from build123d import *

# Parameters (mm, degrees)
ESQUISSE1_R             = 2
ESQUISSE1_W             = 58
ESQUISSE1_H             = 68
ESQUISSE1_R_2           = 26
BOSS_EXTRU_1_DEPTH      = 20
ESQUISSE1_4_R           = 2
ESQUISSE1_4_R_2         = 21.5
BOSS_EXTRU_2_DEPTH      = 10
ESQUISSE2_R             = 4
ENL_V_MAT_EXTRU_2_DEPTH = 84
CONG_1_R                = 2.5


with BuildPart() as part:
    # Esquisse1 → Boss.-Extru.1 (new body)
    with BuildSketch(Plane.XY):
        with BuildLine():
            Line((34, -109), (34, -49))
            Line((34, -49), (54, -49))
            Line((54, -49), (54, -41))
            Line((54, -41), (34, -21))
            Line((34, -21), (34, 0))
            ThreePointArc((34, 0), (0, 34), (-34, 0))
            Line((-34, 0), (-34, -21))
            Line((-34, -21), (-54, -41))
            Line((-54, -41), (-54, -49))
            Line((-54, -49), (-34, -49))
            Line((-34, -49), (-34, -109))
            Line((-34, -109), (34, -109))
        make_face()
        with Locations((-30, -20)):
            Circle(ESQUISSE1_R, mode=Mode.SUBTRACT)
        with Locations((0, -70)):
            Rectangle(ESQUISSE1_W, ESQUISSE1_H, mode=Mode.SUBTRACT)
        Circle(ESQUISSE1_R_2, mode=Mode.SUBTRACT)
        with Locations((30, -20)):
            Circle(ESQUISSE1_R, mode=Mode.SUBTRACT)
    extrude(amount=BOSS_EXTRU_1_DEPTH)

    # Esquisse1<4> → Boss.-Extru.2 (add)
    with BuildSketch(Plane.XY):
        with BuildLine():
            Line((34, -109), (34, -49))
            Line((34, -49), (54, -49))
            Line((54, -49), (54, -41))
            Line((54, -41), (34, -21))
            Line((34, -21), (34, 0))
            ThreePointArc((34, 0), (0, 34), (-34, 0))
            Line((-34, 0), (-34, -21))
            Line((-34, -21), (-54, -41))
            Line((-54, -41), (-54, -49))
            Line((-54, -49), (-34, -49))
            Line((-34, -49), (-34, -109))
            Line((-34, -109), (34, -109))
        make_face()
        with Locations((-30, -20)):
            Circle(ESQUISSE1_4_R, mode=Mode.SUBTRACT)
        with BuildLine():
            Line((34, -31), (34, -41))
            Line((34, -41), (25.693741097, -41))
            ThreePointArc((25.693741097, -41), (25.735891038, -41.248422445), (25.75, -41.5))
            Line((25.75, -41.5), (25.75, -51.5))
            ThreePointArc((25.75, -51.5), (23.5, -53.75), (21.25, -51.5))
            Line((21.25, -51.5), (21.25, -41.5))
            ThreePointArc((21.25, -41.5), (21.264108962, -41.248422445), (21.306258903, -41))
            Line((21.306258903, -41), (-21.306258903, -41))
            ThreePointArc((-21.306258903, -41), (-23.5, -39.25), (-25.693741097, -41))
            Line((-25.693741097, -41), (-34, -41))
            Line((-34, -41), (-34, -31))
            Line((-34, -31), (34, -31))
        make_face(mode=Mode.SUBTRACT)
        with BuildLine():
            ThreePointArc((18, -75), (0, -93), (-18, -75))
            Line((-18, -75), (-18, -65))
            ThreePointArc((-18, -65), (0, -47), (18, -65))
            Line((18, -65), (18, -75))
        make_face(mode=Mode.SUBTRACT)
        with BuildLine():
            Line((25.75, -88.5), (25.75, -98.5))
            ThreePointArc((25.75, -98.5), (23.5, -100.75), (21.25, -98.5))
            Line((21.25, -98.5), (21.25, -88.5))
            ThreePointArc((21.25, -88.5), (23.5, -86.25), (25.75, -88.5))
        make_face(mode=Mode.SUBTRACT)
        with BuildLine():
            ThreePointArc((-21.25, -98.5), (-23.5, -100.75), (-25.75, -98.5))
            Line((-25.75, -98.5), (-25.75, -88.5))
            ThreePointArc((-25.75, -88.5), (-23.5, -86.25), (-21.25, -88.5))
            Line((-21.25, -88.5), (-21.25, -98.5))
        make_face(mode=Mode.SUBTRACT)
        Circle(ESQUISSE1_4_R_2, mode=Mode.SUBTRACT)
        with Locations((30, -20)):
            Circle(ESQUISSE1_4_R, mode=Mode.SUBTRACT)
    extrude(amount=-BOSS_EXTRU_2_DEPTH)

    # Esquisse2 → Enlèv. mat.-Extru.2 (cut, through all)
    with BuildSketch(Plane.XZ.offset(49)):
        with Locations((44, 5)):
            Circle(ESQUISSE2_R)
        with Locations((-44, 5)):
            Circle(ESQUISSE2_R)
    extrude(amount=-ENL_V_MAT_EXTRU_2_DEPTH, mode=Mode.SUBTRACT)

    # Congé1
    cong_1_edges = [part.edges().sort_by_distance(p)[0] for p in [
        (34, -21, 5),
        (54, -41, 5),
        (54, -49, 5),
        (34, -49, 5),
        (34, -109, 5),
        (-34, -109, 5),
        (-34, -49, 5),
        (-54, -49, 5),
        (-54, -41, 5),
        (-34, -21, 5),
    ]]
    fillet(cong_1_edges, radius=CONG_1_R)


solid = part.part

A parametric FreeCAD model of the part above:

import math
import FreeCAD as App
import Part
import Sketcher
from FreeCAD import Vector
Q = App.Units.Quantity


def edges_at(feature, points):
    """Names of the edges that pass closest to the given points."""
    edges = feature.Shape.Edges
    near = lambda p: min(range(len(edges)), key=lambda i: edges[i].distToShape(Part.Vertex(*p))[0])
    return sorted({f"Edge{near(p) + 1}" for p in points})

doc = App.newDocument("Part")
body = doc.addObject("PartDesign::Body", "Body")

sketch1 = body.newObject("Sketcher::SketchObject", "Sketch")
sketch1.AttachmentSupport = (doc.getObject("XY_Plane"), [""])
sketch1.MapMode = "FlatFace"
sketch1.addGeometry(Part.LineSegment(Vector(34, -109, 0), Vector(34, -49, 0)), False)
sketch1.addGeometry(Part.LineSegment(Vector(34, -49, 0), Vector(54, -49, 0)), False)
sketch1.addGeometry(Part.LineSegment(Vector(54, -49, 0), Vector(54, -41, 0)), False)
sketch1.addGeometry(Part.LineSegment(Vector(54, -41, 0), Vector(34, -21, 0)), False)
sketch1.addGeometry(Part.LineSegment(Vector(34, -21, 0), Vector(34, 0, 0)), False)
sketch1.addGeometry(Part.ArcOfCircle(Part.Circle(Vector(0, 0, 0), Vector(0, 0, 1), 34), math.radians(0), math.radians(180)), False)
sketch1.addGeometry(Part.LineSegment(Vector(-34, 0, 0), Vector(-34, -21, 0)), False)
sketch1.addGeometry(Part.LineSegment(Vector(-34, -21, 0), Vector(-54, -41, 0)), False)
sketch1.addGeometry(Part.LineSegment(Vector(-54, -41, 0), Vector(-54, -49, 0)), False)
sketch1.addGeometry(Part.LineSegment(Vector(-54, -49, 0), Vector(-34, -49, 0)), False)
sketch1.addGeometry(Part.LineSegment(Vector(-34, -49, 0), Vector(-34, -109, 0)), False)
sketch1.addGeometry(Part.LineSegment(Vector(-34, -109, 0), Vector(34, -109, 0)), False)
sketch1.addGeometry(Part.LineSegment(Vector(29, -104, 0), Vector(-29, -104, 0)), False)
sketch1.addGeometry(Part.LineSegment(Vector(-29, -104, 0), Vector(-29, -36, 0)), False)
sketch1.addGeometry(Part.LineSegment(Vector(-29, -36, 0), Vector(29, -36, 0)), False)
sketch1.addGeometry(Part.LineSegment(Vector(29, -36, 0), Vector(29, -104, 0)), False)
sketch1.addGeometry(Part.Circle(Vector(-30, -20, 0), Vector(0, 0, 1), 2), False)
sketch1.addGeometry(Part.Circle(Vector(30, -20, 0), Vector(0, 0, 1), 2), False)
sketch1.addGeometry(Part.Circle(Vector(0, 0, 0), Vector(0, 0, 1), 26), False)
sketch1.addConstraint(Sketcher.Constraint("Coincident", 0, 2, 1, 1))
sketch1.addConstraint(Sketcher.Constraint("Coincident", 1, 2, 2, 1))
sketch1.addConstraint(Sketcher.Constraint("Coincident", 2, 2, 3, 1))
sketch1.addConstraint(Sketcher.Constraint("Coincident", 3, 2, 4, 1))
sketch1.addConstraint(Sketcher.Constraint("Tangent", 4, 2, 5, 1))
sketch1.addConstraint(Sketcher.Constraint("Tangent", 5, 2, 6, 1))
sketch1.addConstraint(Sketcher.Constraint("Coincident", 6, 2, 7, 1))
sketch1.addConstraint(Sketcher.Constraint("Coincident", 7, 2, 8, 1))
sketch1.addConstraint(Sketcher.Constraint("Coincident", 8, 2, 9, 1))
sketch1.addConstraint(Sketcher.Constraint("Coincident", 9, 2, 10, 1))
sketch1.addConstraint(Sketcher.Constraint("Coincident", 10, 2, 11, 1))
sketch1.addConstraint(Sketcher.Constraint("Coincident", 11, 2, 0, 1))
sketch1.addConstraint(Sketcher.Constraint("Coincident", 12, 2, 13, 1))
sketch1.addConstraint(Sketcher.Constraint("Coincident", 13, 2, 14, 1))
sketch1.addConstraint(Sketcher.Constraint("Coincident", 14, 2, 15, 1))
sketch1.addConstraint(Sketcher.Constraint("Coincident", 15, 2, 12, 1))
sketch1.addConstraint(Sketcher.Constraint("Vertical", 0))
sketch1.addConstraint(Sketcher.Constraint("Horizontal", 1))
sketch1.addConstraint(Sketcher.Constraint("Vertical", 2))
sketch1.addConstraint(Sketcher.Constraint("Vertical", 4))
sketch1.addConstraint(Sketcher.Constraint("Vertical", 6))
sketch1.addConstraint(Sketcher.Constraint("Vertical", 8))
sketch1.addConstraint(Sketcher.Constraint("Horizontal", 9))
sketch1.addConstraint(Sketcher.Constraint("Vertical", 10))
sketch1.addConstraint(Sketcher.Constraint("Horizontal", 11))
sketch1.addConstraint(Sketcher.Constraint("Horizontal", 12))
sketch1.addConstraint(Sketcher.Constraint("Vertical", 13))
sketch1.addConstraint(Sketcher.Constraint("Horizontal", 14))
sketch1.addConstraint(Sketcher.Constraint("Vertical", 15))
sketch1.addConstraint(Sketcher.Constraint("Coincident", 5, 3, -1, 1))
sketch1.addConstraint(Sketcher.Constraint("Coincident", 18, 3, -1, 1))
sketch1.addConstraint(Sketcher.Constraint("Equal", 16, 17))
sketch1.addConstraint(Sketcher.Constraint("Symmetric", 16, 3, 17, 3, -2))
sketch1.addConstraint(Sketcher.Constraint("Symmetric", 2, 2, 7, 2, -2))
sketch1.addConstraint(Sketcher.Constraint("Symmetric", 0, 2, 9, 2, -2))
sketch1.addConstraint(Sketcher.Constraint("Perpendicular", 3, 7))
sketch1.addConstraint(Sketcher.Constraint("Horizontal", 3, 2, 6, 2))
sketch1.addConstraint(Sketcher.Constraint("Vertical", 0, 2, 3, 2))
sketch1.addConstraint(Sketcher.Constraint("Equal", 11, 13))
sketch1.addConstraint(Sketcher.Constraint("Diameter", 16, Q("4 mm")))
sketch1.addConstraint(Sketcher.Constraint("Diameter", 18, Q("52 mm")))
sketch1.addConstraint(Sketcher.Constraint("Radius", 5, Q("34 mm")))
sketch1.addConstraint(Sketcher.Constraint("DistanceX", 1, 1, 1, 2, Q("20 mm")))
sketch1.addConstraint(Sketcher.Constraint("DistanceX", 12, 2, 12, 1, Q("58 mm")))
sketch1.addConstraint(Sketcher.Constraint("DistanceY", 0, 1, 0, 2, Q("60 mm")))
sketch1.addConstraint(Sketcher.Constraint("DistanceY", 2, 1, 2, 2, Q("8 mm")))
sketch1.addConstraint(Sketcher.Constraint("DistanceY", 4, 1, 4, 2, Q("21 mm")))
sketch1.addConstraint(Sketcher.Constraint("DistanceX", 16, 3, -1, 1, Q("30 mm")))
sketch1.addConstraint(Sketcher.Constraint("DistanceY", 16, 3, -1, 1, Q("20 mm")))
sketch1.addConstraint(Sketcher.Constraint("DistanceX", 12, 2, -1, 1, Q("29 mm")))
sketch1.addConstraint(Sketcher.Constraint("DistanceY", 12, 2, -1, 1, Q("104 mm")))
pad1 = body.newObject("PartDesign::Pad", "Pad")
pad1.Profile = sketch1
pad1.Length = 20

sketch2 = body.newObject("Sketcher::SketchObject", "Sketch001")
sketch2.AttachmentSupport = (doc.getObject("XY_Plane"), [""])
sketch2.MapMode = "FlatFace"
sketch2.addGeometry(Part.LineSegment(Vector(34, -109, 0), Vector(34, -49, 0)), False)
sketch2.addGeometry(Part.LineSegment(Vector(34, -49, 0), Vector(54, -49, 0)), False)
sketch2.addGeometry(Part.LineSegment(Vector(54, -49, 0), Vector(54, -41, 0)), False)
sketch2.addGeometry(Part.LineSegment(Vector(54, -41, 0), Vector(34, -21, 0)), False)
sketch2.addGeometry(Part.LineSegment(Vector(34, -21, 0), Vector(34, 0, 0)), False)
sketch2.addGeometry(Part.ArcOfCircle(Part.Circle(Vector(0, 0, 0), Vector(0, 0, 1), 34), math.radians(0), math.radians(180)), False)
sketch2.addGeometry(Part.LineSegment(Vector(-34, 0, 0), Vector(-34, -21, 0)), False)
sketch2.addGeometry(Part.LineSegment(Vector(-34, -21, 0), Vector(-54, -41, 0)), False)
sketch2.addGeometry(Part.LineSegment(Vector(-54, -41, 0), Vector(-54, -49, 0)), False)
sketch2.addGeometry(Part.LineSegment(Vector(-54, -49, 0), Vector(-34, -49, 0)), False)
sketch2.addGeometry(Part.LineSegment(Vector(-34, -49, 0), Vector(-34, -109, 0)), False)
sketch2.addGeometry(Part.LineSegment(Vector(-34, -109, 0), Vector(34, -109, 0)), False)
sketch2.addGeometry(Part.LineSegment(Vector(-21.2, -88.5, 0), Vector(-21.2, -98.5, 0)), False)
sketch2.addGeometry(Part.ArcOfCircle(Part.Circle(Vector(-23.5, -98.5, 0), Vector(0, 0, 1), 2.2), math.radians(180), math.radians(360)), False)
sketch2.addGeometry(Part.LineSegment(Vector(-25.8, -98.5, 0), Vector(-25.8, -88.5, 0)), False)
sketch2.addGeometry(Part.ArcOfCircle(Part.Circle(Vector(-23.5, -88.5, 0), Vector(0, 0, 1), 2.2), math.radians(0), math.radians(180)), False)
sketch2.addGeometry(Part.ArcOfCircle(Part.Circle(Vector(23.5, -88.5, 0), Vector(0, 0, 1), 2.2), math.radians(0), math.radians(180)), False)
sketch2.addGeometry(Part.LineSegment(Vector(25.8, -88.5, 0), Vector(25.8, -98.5, 0)), False)
sketch2.addGeometry(Part.ArcOfCircle(Part.Circle(Vector(23.5, -98.5, 0), Vector(0, 0, 1), 2.2), math.radians(180), math.radians(360)), False)
sketch2.addGeometry(Part.LineSegment(Vector(21.2, -98.5, 0), Vector(21.2, -88.5, 0)), False)
sketch2.addGeometry(Part.LineSegment(Vector(18, -65, 0), Vector(18, -75, 0)), False)
sketch2.addGeometry(Part.ArcOfCircle(Part.Circle(Vector(0, -75, 0), Vector(0, 0, 1), 18), math.radians(180), math.radians(360)), False)
sketch2.addGeometry(Part.LineSegment(Vector(-18, -75, 0), Vector(-18, -65, 0)), False)
sketch2.addGeometry(Part.ArcOfCircle(Part.Circle(Vector(0, -65, 0), Vector(0, 0, 1), 18), math.radians(0), math.radians(180)), False)
sketch2.addGeometry(Part.LineSegment(Vector(-34, -31, 0), Vector(34, -31, 0)), False)
sketch2.addGeometry(Part.LineSegment(Vector(34, -31, 0), Vector(34, -41, 0)), False)
sketch2.addGeometry(Part.LineSegment(Vector(34, -41, 0), Vector(25.7, -41, 0)), False)
sketch2.addGeometry(Part.ArcOfCircle(Part.Circle(Vector(23.5, -41.5, 0), Vector(0, 0, 1), 2.3), math.radians(0), math.radians(12.84)), False)
sketch2.addGeometry(Part.LineSegment(Vector(25.8, -41.5, 0), Vector(25.8, -51.5, 0)), False)
sketch2.addGeometry(Part.ArcOfCircle(Part.Circle(Vector(23.5, -51.5, 0), Vector(0, 0, 1), 2.2), math.radians(180), math.radians(360)), False)
sketch2.addGeometry(Part.LineSegment(Vector(21.2, -51.5, 0), Vector(21.2, -41.5, 0)), False)
sketch2.addGeometry(Part.ArcOfCircle(Part.Circle(Vector(23.5, -41.5, 0), Vector(0, 0, 1), 2.3), math.radians(167.16), math.radians(180)), False)
sketch2.addGeometry(Part.LineSegment(Vector(21.3, -41, 0), Vector(-21.3, -41, 0)), False)
sketch2.addGeometry(Part.ArcOfCircle(Part.Circle(Vector(-23.5, -41.5, 0), Vector(0, 0, 1), 2.2), math.radians(13), math.radians(167)), False)
sketch2.addGeometry(Part.LineSegment(Vector(-25.7, -41, 0), Vector(-34, -41, 0)), False)
sketch2.addGeometry(Part.LineSegment(Vector(-34, -41, 0), Vector(-34, -31, 0)), False)
sketch2.addGeometry(Part.Circle(Vector(-30, -20, 0), Vector(0, 0, 1), 2), False)
sketch2.addGeometry(Part.Circle(Vector(30, -20, 0), Vector(0, 0, 1), 2), False)
sketch2.addGeometry(Part.Circle(Vector(0, 0, 0), Vector(0, 0, 1), 21.5), False)
sketch2.addConstraint(Sketcher.Constraint("Coincident", 0, 2, 1, 1))
sketch2.addConstraint(Sketcher.Constraint("Coincident", 1, 2, 2, 1))
sketch2.addConstraint(Sketcher.Constraint("Coincident", 2, 2, 3, 1))
sketch2.addConstraint(Sketcher.Constraint("Coincident", 3, 2, 4, 1))
sketch2.addConstraint(Sketcher.Constraint("Tangent", 4, 2, 5, 1))
sketch2.addConstraint(Sketcher.Constraint("Tangent", 5, 2, 6, 1))
sketch2.addConstraint(Sketcher.Constraint("Coincident", 6, 2, 7, 1))
sketch2.addConstraint(Sketcher.Constraint("Coincident", 7, 2, 8, 1))
sketch2.addConstraint(Sketcher.Constraint("Coincident", 8, 2, 9, 1))
sketch2.addConstraint(Sketcher.Constraint("Coincident", 9, 2, 10, 1))
sketch2.addConstraint(Sketcher.Constraint("Coincident", 10, 2, 11, 1))
sketch2.addConstraint(Sketcher.Constraint("Coincident", 11, 2, 0, 1))
sketch2.addConstraint(Sketcher.Constraint("Tangent", 12, 2, 13, 2))
sketch2.addConstraint(Sketcher.Constraint("Tangent", 13, 1, 14, 1))
sketch2.addConstraint(Sketcher.Constraint("Tangent", 14, 2, 15, 2))
sketch2.addConstraint(Sketcher.Constraint("Tangent", 15, 1, 12, 1))
sketch2.addConstraint(Sketcher.Constraint("Tangent", 16, 1, 17, 1))
sketch2.addConstraint(Sketcher.Constraint("Tangent", 17, 2, 18, 2))
sketch2.addConstraint(Sketcher.Constraint("Tangent", 18, 1, 19, 1))
sketch2.addConstraint(Sketcher.Constraint("Tangent", 19, 2, 16, 2))
sketch2.addConstraint(Sketcher.Constraint("Tangent", 20, 2, 21, 2))
sketch2.addConstraint(Sketcher.Constraint("Tangent", 21, 1, 22, 1))
sketch2.addConstraint(Sketcher.Constraint("Tangent", 22, 2, 23, 2))
sketch2.addConstraint(Sketcher.Constraint("Tangent", 23, 1, 20, 1))
sketch2.addConstraint(Sketcher.Constraint("Coincident", 24, 2, 25, 1))
sketch2.addConstraint(Sketcher.Constraint("Coincident", 25, 2, 26, 1))
sketch2.addConstraint(Sketcher.Constraint("Coincident", 26, 2, 27, 2))
sketch2.addConstraint(Sketcher.Constraint("Tangent", 27, 1, 28, 1))
sketch2.addConstraint(Sketcher.Constraint("Tangent", 28, 2, 29, 2))
sketch2.addConstraint(Sketcher.Constraint("Tangent", 29, 1, 30, 1))
sketch2.addConstraint(Sketcher.Constraint("Tangent", 30, 2, 31, 2))
sketch2.addConstraint(Sketcher.Constraint("Coincident", 31, 1, 32, 1))
sketch2.addConstraint(Sketcher.Constraint("Coincident", 32, 2, 33, 1))
sketch2.addConstraint(Sketcher.Constraint("Coincident", 33, 2, 34, 1))
sketch2.addConstraint(Sketcher.Constraint("Coincident", 34, 2, 35, 1))
sketch2.addConstraint(Sketcher.Constraint("Coincident", 35, 2, 24, 1))
sketch2.addConstraint(Sketcher.Constraint("Vertical", 0))
sketch2.addConstraint(Sketcher.Constraint("Horizontal", 1))
sketch2.addConstraint(Sketcher.Constraint("Vertical", 2))
sketch2.addConstraint(Sketcher.Constraint("Vertical", 4))
sketch2.addConstraint(Sketcher.Constraint("Vertical", 6))
sketch2.addConstraint(Sketcher.Constraint("Vertical", 8))
sketch2.addConstraint(Sketcher.Constraint("Horizontal", 9))
sketch2.addConstraint(Sketcher.Constraint("Vertical", 10))
sketch2.addConstraint(Sketcher.Constraint("Horizontal", 11))
sketch2.addConstraint(Sketcher.Constraint("Vertical", 12))
sketch2.addConstraint(Sketcher.Constraint("Vertical", 14))
sketch2.addConstraint(Sketcher.Constraint("Vertical", 17))
sketch2.addConstraint(Sketcher.Constraint("Vertical", 19))
sketch2.addConstraint(Sketcher.Constraint("Vertical", 20))
sketch2.addConstraint(Sketcher.Constraint("Vertical", 22))
sketch2.addConstraint(Sketcher.Constraint("Horizontal", 24))
sketch2.addConstraint(Sketcher.Constraint("Vertical", 25))
sketch2.addConstraint(Sketcher.Constraint("Horizontal", 26))
sketch2.addConstraint(Sketcher.Constraint("Vertical", 28))
sketch2.addConstraint(Sketcher.Constraint("Vertical", 30))
sketch2.addConstraint(Sketcher.Constraint("Horizontal", 32))
sketch2.addConstraint(Sketcher.Constraint("Horizontal", 34))
sketch2.addConstraint(Sketcher.Constraint("Vertical", 35))
sketch2.addConstraint(Sketcher.Constraint("Coincident", 5, 3, -1, 1))
sketch2.addConstraint(Sketcher.Constraint("Coincident", 38, 3, -1, 1))
sketch2.addConstraint(Sketcher.Constraint("Coincident", 31, 3, 27, 3))
sketch2.addConstraint(Sketcher.Constraint("Equal", 15, 16))
sketch2.addConstraint(Sketcher.Constraint("Equal", 18, 27))
sketch2.addConstraint(Sketcher.Constraint("Equal", 27, 29))
sketch2.addConstraint(Sketcher.Constraint("Equal", 31, 33))
sketch2.addConstraint(Sketcher.Constraint("Equal", 36, 37))
sketch2.addConstraint(Sketcher.Constraint("Symmetric", 15, 3, 16, 3, -2))
sketch2.addConstraint(Sketcher.Constraint("Symmetric", 27, 3, 33, 3, -2))
sketch2.addConstraint(Sketcher.Constraint("Symmetric", 36, 3, 37, 3, -2))
sketch2.addConstraint(Sketcher.Constraint("Symmetric", 2, 2, 7, 2, -2))
sketch2.addConstraint(Sketcher.Constraint("Symmetric", 0, 2, 9, 2, -2))
sketch2.addConstraint(Sketcher.Constraint("Symmetric", 25, 2, 34, 2, -2))
sketch2.addConstraint(Sketcher.Constraint("PointOnObject", 21, 3, -2))
sketch2.addConstraint(Sketcher.Constraint("Perpendicular", 3, 7))
sketch2.addConstraint(Sketcher.Constraint("Horizontal", 13, 3, 18, 3))
sketch2.addConstraint(Sketcher.Constraint("Horizontal", 3, 2, 6, 2))
sketch2.addConstraint(Sketcher.Constraint("Horizontal", 7, 2, 25, 2))
sketch2.addConstraint(Sketcher.Constraint("Horizontal", 26, 2, 31, 1))
sketch2.addConstraint(Sketcher.Constraint("Vertical", 18, 3, 27, 3))
sketch2.addConstraint(Sketcher.Constraint("Vertical", 0, 2, 3, 2))
sketch2.addConstraint(Sketcher.Constraint("Vertical", 11, 2, 24, 2))
sketch2.addConstraint(Sketcher.Constraint("Equal", 19, 20))
sketch2.addConstraint(Sketcher.Constraint("Equal", 22, 25))
sketch2.addConstraint(Sketcher.Constraint("Equal", 25, 28))
sketch2.addConstraint(Sketcher.Constraint("Diameter", 36, Q("4 mm")))
sketch2.addConstraint(Sketcher.Constraint("Diameter", 38, Q("43 mm")))
sketch2.addConstraint(Sketcher.Constraint("Radius", 5, Q("34 mm")))
sketch2.addConstraint(Sketcher.Constraint("Radius", 21, Q("18 mm")))
sketch2.addConstraint(Sketcher.Constraint("DistanceX", 1, 1, 1, 2, Q("20 mm")))
sketch2.addConstraint(Sketcher.Constraint("DistanceY", 0, 1, 0, 2, Q("60 mm")))
sketch2.addConstraint(Sketcher.Constraint("DistanceY", 2, 1, 2, 2, Q("8 mm")))
sketch2.addConstraint(Sketcher.Constraint("DistanceY", 4, 1, 4, 2, Q("21 mm")))
sketch2.addConstraint(Sketcher.Constraint("DistanceY", 12, 2, 12, 1, Q("10 mm")))
sketch2.addConstraint(Sketcher.Constraint("Radius", 13, Q("2.25 mm")))
sketch2.addConstraint(Sketcher.Constraint("DistanceY", 21, 3, -1, 1, Q("75 mm")))
sketch2.addConstraint(Sketcher.Constraint("DistanceX", 36, 3, -1, 1, Q("30 mm")))
sketch2.addConstraint(Sketcher.Constraint("DistanceY", 36, 3, -1, 1, Q("20 mm")))
sketch2.addConstraint(Sketcher.Constraint("DistanceX", 15, 3, 16, 3, Q("47 mm")))
sketch2.addConstraint(Sketcher.Constraint("DistanceY", 16, 3, 27, 3, Q("47 mm")))
sketch2.addConstraint(Sketcher.Constraint("DistanceY", 13, 3, -1, 1, Q("98.5 mm")))
pad2 = body.newObject("PartDesign::Pad", "Pad001")
pad2.Profile = sketch2
pad2.Length = 10
pad2.Reversed = True

sketch3 = body.newObject("Sketcher::SketchObject", "Sketch002")
sketch3.AttachmentSupport = (doc.getObject("XZ_Plane"), [""])
sketch3.MapMode = "FlatFace"
sketch3.AttachmentOffset = App.Placement(Vector(0, 0, 49), App.Rotation())
sketch3.addGeometry(Part.Circle(Vector(44, 5, 0), Vector(0, 0, 1), 4), False)
sketch3.addGeometry(Part.Circle(Vector(-44, 5, 0), Vector(0, 0, 1), 4), False)
sketch3.addConstraint(Sketcher.Constraint("Equal", 0, 1))
sketch3.addConstraint(Sketcher.Constraint("Symmetric", 0, 3, 1, 3, -2))
sketch3.addConstraint(Sketcher.Constraint("Diameter", 0, Q("8 mm")))
sketch3.addConstraint(Sketcher.Constraint("DistanceX", -1, 1, 0, 3, Q("44 mm")))
sketch3.addConstraint(Sketcher.Constraint("DistanceY", -1, 1, 0, 3, Q("5 mm")))
pocket1 = body.newObject("PartDesign::Pocket", "Pocket")
pocket1.Profile = sketch3
pocket1.Type = "ThroughAll"
doc.recompute()

fillet = body.newObject("PartDesign::Fillet", "Fillet")
fillet.Base = (pocket1, edges_at(pocket1, [
    (34, -21, 5),
    (54, -41, 5),
    (54, -49, 5),
    (34, -49, 5),
    (34, -109, 5),
    (-34, -109, 5),
    (-34, -49, 5),
    (-54, -49, 5),
    (-54, -41, 5),
    (-34, -21, 5),
]))
fillet.Radius = 2.5

doc.recompute()
